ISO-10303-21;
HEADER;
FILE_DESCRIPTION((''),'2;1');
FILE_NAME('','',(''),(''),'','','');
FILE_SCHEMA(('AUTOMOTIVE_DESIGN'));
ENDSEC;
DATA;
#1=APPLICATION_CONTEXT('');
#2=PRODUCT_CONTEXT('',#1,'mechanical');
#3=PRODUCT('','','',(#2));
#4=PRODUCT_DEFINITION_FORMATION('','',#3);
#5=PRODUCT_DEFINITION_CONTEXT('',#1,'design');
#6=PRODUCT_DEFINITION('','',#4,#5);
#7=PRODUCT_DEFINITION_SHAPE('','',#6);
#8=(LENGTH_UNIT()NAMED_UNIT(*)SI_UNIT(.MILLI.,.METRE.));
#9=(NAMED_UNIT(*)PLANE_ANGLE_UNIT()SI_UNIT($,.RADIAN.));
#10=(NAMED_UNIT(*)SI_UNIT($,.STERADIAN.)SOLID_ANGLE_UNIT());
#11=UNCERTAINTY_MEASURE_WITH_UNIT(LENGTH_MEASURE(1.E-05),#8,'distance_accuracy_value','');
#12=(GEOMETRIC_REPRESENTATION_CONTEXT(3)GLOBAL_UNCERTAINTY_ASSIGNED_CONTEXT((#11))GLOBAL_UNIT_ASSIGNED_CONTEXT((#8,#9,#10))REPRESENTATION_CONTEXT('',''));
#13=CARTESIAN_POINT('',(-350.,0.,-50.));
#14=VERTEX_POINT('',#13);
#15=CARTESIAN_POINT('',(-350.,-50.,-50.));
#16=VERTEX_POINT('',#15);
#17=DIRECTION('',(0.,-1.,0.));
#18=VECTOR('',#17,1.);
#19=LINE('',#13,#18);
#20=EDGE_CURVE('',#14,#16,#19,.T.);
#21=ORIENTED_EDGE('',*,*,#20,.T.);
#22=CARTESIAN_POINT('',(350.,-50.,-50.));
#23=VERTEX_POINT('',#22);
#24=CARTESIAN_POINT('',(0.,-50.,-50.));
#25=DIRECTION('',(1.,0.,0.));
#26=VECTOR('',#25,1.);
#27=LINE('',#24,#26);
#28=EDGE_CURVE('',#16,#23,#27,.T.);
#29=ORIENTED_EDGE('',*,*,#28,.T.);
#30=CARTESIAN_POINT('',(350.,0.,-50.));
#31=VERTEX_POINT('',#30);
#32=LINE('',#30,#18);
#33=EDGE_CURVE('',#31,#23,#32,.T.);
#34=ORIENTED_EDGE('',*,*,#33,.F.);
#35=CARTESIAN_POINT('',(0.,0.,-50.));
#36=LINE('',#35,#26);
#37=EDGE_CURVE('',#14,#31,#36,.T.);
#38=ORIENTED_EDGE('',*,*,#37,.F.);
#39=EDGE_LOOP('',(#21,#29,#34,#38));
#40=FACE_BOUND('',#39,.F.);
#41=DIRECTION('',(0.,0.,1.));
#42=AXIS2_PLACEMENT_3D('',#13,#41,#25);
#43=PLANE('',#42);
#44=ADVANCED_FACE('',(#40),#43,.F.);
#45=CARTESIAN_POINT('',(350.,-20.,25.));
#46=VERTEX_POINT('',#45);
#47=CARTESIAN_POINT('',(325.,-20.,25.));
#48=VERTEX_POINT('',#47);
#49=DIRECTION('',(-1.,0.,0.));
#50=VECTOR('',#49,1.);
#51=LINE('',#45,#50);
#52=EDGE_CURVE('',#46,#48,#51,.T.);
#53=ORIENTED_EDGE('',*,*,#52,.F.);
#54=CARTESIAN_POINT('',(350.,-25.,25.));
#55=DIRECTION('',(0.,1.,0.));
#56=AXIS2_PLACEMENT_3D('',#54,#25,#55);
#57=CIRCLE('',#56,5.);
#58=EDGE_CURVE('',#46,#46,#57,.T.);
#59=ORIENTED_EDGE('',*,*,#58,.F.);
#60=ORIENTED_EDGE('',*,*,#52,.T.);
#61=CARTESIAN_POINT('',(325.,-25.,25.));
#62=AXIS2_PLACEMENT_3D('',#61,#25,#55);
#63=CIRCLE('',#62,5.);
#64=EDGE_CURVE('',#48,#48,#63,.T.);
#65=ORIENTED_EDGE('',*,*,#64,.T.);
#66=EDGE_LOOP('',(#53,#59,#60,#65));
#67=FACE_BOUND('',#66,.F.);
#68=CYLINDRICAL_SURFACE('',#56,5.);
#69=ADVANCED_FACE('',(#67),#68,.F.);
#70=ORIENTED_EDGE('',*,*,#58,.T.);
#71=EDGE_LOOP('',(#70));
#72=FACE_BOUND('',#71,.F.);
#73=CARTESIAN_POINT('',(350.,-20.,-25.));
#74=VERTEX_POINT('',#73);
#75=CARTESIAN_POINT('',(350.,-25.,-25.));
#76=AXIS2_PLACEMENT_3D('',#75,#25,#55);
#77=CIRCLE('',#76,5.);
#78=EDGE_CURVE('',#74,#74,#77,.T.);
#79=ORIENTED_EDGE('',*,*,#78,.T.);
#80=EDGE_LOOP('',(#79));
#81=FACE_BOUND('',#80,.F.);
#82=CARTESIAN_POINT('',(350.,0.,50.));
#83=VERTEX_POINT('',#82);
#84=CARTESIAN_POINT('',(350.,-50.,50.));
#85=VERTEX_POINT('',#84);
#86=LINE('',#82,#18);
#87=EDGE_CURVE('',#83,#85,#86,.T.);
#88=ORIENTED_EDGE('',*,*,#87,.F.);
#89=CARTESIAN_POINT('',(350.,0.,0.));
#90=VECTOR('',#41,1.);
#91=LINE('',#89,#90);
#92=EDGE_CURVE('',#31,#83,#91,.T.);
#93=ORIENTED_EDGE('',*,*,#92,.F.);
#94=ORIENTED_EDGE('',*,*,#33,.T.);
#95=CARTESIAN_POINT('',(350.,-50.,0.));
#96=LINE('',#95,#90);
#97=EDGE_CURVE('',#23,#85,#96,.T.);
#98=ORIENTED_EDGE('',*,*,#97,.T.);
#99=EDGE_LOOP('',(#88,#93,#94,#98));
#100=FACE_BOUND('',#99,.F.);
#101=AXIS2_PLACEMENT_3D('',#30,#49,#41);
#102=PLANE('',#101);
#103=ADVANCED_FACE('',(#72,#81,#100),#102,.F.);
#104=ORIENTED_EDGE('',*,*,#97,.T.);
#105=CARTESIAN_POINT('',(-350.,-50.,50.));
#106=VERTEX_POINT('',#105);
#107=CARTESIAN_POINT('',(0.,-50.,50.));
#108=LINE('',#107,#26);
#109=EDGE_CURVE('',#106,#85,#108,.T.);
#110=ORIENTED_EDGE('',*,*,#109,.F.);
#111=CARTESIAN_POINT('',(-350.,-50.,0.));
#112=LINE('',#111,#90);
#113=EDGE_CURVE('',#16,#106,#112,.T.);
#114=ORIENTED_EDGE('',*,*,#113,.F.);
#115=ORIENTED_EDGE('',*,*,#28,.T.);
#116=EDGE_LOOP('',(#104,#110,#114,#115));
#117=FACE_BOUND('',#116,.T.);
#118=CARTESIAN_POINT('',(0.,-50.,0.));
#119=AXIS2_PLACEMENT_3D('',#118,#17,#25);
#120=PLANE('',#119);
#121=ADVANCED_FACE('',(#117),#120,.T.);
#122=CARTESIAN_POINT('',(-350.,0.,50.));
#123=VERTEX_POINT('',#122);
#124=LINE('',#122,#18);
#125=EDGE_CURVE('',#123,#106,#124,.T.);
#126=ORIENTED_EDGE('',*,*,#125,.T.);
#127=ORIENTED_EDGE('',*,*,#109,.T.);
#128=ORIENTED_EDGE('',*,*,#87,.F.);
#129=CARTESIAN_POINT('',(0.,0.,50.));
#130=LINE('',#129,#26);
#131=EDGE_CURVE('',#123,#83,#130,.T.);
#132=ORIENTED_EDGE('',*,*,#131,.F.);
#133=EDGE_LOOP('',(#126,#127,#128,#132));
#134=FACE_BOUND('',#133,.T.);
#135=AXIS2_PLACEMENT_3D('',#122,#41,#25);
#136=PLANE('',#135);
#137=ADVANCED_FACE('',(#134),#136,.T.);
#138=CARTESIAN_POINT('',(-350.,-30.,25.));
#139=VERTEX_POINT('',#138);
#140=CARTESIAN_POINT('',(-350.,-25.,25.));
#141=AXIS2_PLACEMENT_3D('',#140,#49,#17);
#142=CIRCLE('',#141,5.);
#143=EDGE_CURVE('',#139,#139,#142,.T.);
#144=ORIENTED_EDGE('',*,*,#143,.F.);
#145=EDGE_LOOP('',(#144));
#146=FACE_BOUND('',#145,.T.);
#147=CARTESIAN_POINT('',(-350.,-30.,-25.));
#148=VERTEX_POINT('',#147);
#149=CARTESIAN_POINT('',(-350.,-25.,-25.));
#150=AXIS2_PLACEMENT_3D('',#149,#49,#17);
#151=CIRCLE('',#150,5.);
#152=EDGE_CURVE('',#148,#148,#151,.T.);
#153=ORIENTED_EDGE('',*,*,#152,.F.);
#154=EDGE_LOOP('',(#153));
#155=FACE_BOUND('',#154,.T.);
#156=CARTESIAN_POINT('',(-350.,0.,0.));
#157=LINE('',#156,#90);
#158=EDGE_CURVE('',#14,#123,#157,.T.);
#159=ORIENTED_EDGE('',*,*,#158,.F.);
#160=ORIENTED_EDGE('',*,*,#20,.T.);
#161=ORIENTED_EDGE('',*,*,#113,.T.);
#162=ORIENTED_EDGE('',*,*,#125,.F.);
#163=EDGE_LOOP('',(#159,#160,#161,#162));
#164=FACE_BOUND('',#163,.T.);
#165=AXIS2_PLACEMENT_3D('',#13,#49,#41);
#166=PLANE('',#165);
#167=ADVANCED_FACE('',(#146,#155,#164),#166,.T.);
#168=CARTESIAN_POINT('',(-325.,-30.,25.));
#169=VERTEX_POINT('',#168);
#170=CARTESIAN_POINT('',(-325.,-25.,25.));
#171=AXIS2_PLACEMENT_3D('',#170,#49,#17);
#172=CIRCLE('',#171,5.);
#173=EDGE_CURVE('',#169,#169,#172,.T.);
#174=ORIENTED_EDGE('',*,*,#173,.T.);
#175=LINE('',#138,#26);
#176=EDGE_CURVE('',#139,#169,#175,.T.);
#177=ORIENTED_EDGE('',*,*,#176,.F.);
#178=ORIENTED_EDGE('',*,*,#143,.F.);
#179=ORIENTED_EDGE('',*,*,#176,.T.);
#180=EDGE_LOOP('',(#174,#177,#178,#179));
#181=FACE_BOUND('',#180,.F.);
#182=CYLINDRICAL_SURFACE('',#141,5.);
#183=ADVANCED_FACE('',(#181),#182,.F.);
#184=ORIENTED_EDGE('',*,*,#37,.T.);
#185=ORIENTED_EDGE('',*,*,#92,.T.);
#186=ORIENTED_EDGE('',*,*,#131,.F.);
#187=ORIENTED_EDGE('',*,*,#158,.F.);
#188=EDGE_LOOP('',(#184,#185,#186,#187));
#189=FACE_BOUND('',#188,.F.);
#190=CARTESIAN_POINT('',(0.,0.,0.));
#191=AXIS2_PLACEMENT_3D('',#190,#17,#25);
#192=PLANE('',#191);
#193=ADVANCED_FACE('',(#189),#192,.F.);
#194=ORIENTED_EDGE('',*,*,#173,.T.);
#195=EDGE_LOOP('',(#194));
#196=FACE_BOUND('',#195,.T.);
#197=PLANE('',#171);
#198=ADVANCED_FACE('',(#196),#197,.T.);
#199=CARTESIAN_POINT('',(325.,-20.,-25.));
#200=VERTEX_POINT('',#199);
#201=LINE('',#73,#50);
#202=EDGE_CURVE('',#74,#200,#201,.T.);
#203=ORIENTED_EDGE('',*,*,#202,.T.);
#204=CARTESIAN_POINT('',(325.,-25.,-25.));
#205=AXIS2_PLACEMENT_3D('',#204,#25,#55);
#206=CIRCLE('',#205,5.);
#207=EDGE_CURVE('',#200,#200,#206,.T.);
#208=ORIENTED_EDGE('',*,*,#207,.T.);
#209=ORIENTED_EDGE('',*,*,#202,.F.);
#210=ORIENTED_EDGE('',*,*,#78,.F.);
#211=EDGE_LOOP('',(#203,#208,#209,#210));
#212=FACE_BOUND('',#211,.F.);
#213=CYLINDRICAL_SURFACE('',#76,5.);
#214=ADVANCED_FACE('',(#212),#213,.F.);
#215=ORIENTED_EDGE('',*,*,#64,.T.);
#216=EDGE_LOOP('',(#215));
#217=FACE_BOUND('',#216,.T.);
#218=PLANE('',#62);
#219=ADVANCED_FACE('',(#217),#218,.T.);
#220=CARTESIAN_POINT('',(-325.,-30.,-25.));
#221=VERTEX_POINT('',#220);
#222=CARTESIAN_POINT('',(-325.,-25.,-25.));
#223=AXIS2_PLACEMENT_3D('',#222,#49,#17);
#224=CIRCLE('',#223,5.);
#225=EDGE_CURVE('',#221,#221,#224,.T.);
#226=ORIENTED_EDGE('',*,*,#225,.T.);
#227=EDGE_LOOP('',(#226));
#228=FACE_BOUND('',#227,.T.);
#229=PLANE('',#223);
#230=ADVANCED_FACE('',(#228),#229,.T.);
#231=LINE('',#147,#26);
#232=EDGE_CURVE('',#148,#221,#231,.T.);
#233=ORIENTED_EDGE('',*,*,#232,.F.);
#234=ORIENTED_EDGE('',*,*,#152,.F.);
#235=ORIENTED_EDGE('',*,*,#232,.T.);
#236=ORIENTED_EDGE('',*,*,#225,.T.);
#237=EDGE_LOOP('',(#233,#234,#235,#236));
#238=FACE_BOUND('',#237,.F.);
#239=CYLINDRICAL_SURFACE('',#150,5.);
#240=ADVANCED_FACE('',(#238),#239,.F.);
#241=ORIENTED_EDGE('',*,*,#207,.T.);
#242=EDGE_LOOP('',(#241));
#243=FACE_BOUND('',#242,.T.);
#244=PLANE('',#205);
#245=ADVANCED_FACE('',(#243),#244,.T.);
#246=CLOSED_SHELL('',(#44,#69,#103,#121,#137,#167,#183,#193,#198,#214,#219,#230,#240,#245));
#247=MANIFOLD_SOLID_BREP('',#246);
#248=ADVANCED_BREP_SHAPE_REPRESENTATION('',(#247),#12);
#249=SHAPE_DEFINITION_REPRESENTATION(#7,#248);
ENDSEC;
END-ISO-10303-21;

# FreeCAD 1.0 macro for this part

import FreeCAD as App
import Part
import Sketcher

doc = App.newDocument("Part")
body = doc.addObject("PartDesign::Body", "Body")

sketch1 = body.newObject("Sketcher::SketchObject", "Sketch")
sketch1.AttachmentSupport = (doc.getObject("XZ_Plane"), [""])
sketch1.MapMode = "FlatFace"
sketch1.addGeometry(Part.LineSegment(App.Vector(-350, 50, 0), App.Vector(-350, -50, 0)), False)
sketch1.addGeometry(Part.LineSegment(App.Vector(-350, -50, 0), App.Vector(350, -50, 0)), False)
sketch1.addGeometry(Part.LineSegment(App.Vector(350, -50, 0), App.Vector(350, 50, 0)), False)
sketch1.addGeometry(Part.LineSegment(App.Vector(350, 50, 0), App.Vector(-350, 50, 0)), False)
sketch1.addConstraint(Sketcher.Constraint("Coincident", 0, 2, 1, 1))
sketch1.addConstraint(Sketcher.Constraint("Coincident", 1, 2, 2, 1))
sketch1.addConstraint(Sketcher.Constraint("Coincident", 2, 2, 3, 1))
sketch1.addConstraint(Sketcher.Constraint("Coincident", 3, 2, 0, 1))
sketch1.addConstraint(Sketcher.Constraint("Vertical", 0))
sketch1.addConstraint(Sketcher.Constraint("Horizontal", 1))
sketch1.addConstraint(Sketcher.Constraint("Vertical", 2))
sketch1.addConstraint(Sketcher.Constraint("Horizontal", 3))
sketch1.addConstraint(Sketcher.Constraint("Symmetric", 0, 2, 2, 2, -1, 1))
sketch1.addConstraint(Sketcher.Constraint("DistanceX", 1, 1, 1, 2, 700.0))
sketch1.addConstraint(Sketcher.Constraint("DistanceY", 0, 2, 0, 1, 100.0))
pad1 = body.newObject("PartDesign::Pad", "Pad")
pad1.Profile = sketch1
pad1.Length = 50

sketch2 = body.newObject("Sketcher::SketchObject", "Sketch001")
sketch2.AttachmentSupport = (doc.getObject("YZ_Plane"), [""])
sketch2.MapMode = "FlatFace"
sketch2.AttachmentOffset = App.Placement(App.Vector(0, 0, -350), App.Rotation())
sketch2.addGeometry(Part.Circle(App.Vector(-25, 25, 0), App.Vector(0, 0, 1), 5), False)
sketch2.addGeometry(Part.Circle(App.Vector(-25, -25, 0), App.Vector(0, 0, 1), 5), False)
sketch2.addConstraint(Sketcher.Constraint("Equal", 0, 1))
sketch2.addConstraint(Sketcher.Constraint("Symmetric", 0, 3, 1, 3, -1))
sketch2.addConstraint(Sketcher.Constraint("Diameter", 0, 10.0))
sketch2.addConstraint(Sketcher.Constraint("DistanceX", 0, 3, -1, 1, 25.0))
sketch2.addConstraint(Sketcher.Constraint("DistanceY", -1, 1, 0, 3, 25.0))
pocket1 = body.newObject("PartDesign::Pocket", "Pocket")
pocket1.Profile = sketch2
pocket1.Length = 25
pocket1.Reversed = True

sketch3 = body.newObject("Sketcher::SketchObject", "Sketch002")
sketch3.AttachmentSupport = (doc.getObject("YZ_Plane"), [""])
sketch3.MapMode = "FlatFace"
sketch3.AttachmentOffset = App.Placement(App.Vector(0, 0, 350), App.Rotation())
sketch3.addGeometry(Part.Circle(App.Vector(-25, 25, 0), App.Vector(0, 0, 1), 5), False)
sketch3.addGeometry(Part.Circle(App.Vector(-25, -25, 0), App.Vector(0, 0, 1), 5), False)
sketch3.addConstraint(Sketcher.Constraint("Equal", 0, 1))
sketch3.addConstraint(Sketcher.Constraint("Symmetric", 0, 3, 1, 3, -1))
sketch3.addConstraint(Sketcher.Constraint("Diameter", 0, 10.0))
sketch3.addConstraint(Sketcher.Constraint("DistanceX", 0, 3, -1, 1, 25.0))
sketch3.addConstraint(Sketcher.Constraint("DistanceY", -1, 1, 0, 3, 25.0))
pocket2 = body.newObject("PartDesign::Pocket", "Pocket001")
pocket2.Profile = sketch3
pocket2.Length = 25

doc.recompute()
